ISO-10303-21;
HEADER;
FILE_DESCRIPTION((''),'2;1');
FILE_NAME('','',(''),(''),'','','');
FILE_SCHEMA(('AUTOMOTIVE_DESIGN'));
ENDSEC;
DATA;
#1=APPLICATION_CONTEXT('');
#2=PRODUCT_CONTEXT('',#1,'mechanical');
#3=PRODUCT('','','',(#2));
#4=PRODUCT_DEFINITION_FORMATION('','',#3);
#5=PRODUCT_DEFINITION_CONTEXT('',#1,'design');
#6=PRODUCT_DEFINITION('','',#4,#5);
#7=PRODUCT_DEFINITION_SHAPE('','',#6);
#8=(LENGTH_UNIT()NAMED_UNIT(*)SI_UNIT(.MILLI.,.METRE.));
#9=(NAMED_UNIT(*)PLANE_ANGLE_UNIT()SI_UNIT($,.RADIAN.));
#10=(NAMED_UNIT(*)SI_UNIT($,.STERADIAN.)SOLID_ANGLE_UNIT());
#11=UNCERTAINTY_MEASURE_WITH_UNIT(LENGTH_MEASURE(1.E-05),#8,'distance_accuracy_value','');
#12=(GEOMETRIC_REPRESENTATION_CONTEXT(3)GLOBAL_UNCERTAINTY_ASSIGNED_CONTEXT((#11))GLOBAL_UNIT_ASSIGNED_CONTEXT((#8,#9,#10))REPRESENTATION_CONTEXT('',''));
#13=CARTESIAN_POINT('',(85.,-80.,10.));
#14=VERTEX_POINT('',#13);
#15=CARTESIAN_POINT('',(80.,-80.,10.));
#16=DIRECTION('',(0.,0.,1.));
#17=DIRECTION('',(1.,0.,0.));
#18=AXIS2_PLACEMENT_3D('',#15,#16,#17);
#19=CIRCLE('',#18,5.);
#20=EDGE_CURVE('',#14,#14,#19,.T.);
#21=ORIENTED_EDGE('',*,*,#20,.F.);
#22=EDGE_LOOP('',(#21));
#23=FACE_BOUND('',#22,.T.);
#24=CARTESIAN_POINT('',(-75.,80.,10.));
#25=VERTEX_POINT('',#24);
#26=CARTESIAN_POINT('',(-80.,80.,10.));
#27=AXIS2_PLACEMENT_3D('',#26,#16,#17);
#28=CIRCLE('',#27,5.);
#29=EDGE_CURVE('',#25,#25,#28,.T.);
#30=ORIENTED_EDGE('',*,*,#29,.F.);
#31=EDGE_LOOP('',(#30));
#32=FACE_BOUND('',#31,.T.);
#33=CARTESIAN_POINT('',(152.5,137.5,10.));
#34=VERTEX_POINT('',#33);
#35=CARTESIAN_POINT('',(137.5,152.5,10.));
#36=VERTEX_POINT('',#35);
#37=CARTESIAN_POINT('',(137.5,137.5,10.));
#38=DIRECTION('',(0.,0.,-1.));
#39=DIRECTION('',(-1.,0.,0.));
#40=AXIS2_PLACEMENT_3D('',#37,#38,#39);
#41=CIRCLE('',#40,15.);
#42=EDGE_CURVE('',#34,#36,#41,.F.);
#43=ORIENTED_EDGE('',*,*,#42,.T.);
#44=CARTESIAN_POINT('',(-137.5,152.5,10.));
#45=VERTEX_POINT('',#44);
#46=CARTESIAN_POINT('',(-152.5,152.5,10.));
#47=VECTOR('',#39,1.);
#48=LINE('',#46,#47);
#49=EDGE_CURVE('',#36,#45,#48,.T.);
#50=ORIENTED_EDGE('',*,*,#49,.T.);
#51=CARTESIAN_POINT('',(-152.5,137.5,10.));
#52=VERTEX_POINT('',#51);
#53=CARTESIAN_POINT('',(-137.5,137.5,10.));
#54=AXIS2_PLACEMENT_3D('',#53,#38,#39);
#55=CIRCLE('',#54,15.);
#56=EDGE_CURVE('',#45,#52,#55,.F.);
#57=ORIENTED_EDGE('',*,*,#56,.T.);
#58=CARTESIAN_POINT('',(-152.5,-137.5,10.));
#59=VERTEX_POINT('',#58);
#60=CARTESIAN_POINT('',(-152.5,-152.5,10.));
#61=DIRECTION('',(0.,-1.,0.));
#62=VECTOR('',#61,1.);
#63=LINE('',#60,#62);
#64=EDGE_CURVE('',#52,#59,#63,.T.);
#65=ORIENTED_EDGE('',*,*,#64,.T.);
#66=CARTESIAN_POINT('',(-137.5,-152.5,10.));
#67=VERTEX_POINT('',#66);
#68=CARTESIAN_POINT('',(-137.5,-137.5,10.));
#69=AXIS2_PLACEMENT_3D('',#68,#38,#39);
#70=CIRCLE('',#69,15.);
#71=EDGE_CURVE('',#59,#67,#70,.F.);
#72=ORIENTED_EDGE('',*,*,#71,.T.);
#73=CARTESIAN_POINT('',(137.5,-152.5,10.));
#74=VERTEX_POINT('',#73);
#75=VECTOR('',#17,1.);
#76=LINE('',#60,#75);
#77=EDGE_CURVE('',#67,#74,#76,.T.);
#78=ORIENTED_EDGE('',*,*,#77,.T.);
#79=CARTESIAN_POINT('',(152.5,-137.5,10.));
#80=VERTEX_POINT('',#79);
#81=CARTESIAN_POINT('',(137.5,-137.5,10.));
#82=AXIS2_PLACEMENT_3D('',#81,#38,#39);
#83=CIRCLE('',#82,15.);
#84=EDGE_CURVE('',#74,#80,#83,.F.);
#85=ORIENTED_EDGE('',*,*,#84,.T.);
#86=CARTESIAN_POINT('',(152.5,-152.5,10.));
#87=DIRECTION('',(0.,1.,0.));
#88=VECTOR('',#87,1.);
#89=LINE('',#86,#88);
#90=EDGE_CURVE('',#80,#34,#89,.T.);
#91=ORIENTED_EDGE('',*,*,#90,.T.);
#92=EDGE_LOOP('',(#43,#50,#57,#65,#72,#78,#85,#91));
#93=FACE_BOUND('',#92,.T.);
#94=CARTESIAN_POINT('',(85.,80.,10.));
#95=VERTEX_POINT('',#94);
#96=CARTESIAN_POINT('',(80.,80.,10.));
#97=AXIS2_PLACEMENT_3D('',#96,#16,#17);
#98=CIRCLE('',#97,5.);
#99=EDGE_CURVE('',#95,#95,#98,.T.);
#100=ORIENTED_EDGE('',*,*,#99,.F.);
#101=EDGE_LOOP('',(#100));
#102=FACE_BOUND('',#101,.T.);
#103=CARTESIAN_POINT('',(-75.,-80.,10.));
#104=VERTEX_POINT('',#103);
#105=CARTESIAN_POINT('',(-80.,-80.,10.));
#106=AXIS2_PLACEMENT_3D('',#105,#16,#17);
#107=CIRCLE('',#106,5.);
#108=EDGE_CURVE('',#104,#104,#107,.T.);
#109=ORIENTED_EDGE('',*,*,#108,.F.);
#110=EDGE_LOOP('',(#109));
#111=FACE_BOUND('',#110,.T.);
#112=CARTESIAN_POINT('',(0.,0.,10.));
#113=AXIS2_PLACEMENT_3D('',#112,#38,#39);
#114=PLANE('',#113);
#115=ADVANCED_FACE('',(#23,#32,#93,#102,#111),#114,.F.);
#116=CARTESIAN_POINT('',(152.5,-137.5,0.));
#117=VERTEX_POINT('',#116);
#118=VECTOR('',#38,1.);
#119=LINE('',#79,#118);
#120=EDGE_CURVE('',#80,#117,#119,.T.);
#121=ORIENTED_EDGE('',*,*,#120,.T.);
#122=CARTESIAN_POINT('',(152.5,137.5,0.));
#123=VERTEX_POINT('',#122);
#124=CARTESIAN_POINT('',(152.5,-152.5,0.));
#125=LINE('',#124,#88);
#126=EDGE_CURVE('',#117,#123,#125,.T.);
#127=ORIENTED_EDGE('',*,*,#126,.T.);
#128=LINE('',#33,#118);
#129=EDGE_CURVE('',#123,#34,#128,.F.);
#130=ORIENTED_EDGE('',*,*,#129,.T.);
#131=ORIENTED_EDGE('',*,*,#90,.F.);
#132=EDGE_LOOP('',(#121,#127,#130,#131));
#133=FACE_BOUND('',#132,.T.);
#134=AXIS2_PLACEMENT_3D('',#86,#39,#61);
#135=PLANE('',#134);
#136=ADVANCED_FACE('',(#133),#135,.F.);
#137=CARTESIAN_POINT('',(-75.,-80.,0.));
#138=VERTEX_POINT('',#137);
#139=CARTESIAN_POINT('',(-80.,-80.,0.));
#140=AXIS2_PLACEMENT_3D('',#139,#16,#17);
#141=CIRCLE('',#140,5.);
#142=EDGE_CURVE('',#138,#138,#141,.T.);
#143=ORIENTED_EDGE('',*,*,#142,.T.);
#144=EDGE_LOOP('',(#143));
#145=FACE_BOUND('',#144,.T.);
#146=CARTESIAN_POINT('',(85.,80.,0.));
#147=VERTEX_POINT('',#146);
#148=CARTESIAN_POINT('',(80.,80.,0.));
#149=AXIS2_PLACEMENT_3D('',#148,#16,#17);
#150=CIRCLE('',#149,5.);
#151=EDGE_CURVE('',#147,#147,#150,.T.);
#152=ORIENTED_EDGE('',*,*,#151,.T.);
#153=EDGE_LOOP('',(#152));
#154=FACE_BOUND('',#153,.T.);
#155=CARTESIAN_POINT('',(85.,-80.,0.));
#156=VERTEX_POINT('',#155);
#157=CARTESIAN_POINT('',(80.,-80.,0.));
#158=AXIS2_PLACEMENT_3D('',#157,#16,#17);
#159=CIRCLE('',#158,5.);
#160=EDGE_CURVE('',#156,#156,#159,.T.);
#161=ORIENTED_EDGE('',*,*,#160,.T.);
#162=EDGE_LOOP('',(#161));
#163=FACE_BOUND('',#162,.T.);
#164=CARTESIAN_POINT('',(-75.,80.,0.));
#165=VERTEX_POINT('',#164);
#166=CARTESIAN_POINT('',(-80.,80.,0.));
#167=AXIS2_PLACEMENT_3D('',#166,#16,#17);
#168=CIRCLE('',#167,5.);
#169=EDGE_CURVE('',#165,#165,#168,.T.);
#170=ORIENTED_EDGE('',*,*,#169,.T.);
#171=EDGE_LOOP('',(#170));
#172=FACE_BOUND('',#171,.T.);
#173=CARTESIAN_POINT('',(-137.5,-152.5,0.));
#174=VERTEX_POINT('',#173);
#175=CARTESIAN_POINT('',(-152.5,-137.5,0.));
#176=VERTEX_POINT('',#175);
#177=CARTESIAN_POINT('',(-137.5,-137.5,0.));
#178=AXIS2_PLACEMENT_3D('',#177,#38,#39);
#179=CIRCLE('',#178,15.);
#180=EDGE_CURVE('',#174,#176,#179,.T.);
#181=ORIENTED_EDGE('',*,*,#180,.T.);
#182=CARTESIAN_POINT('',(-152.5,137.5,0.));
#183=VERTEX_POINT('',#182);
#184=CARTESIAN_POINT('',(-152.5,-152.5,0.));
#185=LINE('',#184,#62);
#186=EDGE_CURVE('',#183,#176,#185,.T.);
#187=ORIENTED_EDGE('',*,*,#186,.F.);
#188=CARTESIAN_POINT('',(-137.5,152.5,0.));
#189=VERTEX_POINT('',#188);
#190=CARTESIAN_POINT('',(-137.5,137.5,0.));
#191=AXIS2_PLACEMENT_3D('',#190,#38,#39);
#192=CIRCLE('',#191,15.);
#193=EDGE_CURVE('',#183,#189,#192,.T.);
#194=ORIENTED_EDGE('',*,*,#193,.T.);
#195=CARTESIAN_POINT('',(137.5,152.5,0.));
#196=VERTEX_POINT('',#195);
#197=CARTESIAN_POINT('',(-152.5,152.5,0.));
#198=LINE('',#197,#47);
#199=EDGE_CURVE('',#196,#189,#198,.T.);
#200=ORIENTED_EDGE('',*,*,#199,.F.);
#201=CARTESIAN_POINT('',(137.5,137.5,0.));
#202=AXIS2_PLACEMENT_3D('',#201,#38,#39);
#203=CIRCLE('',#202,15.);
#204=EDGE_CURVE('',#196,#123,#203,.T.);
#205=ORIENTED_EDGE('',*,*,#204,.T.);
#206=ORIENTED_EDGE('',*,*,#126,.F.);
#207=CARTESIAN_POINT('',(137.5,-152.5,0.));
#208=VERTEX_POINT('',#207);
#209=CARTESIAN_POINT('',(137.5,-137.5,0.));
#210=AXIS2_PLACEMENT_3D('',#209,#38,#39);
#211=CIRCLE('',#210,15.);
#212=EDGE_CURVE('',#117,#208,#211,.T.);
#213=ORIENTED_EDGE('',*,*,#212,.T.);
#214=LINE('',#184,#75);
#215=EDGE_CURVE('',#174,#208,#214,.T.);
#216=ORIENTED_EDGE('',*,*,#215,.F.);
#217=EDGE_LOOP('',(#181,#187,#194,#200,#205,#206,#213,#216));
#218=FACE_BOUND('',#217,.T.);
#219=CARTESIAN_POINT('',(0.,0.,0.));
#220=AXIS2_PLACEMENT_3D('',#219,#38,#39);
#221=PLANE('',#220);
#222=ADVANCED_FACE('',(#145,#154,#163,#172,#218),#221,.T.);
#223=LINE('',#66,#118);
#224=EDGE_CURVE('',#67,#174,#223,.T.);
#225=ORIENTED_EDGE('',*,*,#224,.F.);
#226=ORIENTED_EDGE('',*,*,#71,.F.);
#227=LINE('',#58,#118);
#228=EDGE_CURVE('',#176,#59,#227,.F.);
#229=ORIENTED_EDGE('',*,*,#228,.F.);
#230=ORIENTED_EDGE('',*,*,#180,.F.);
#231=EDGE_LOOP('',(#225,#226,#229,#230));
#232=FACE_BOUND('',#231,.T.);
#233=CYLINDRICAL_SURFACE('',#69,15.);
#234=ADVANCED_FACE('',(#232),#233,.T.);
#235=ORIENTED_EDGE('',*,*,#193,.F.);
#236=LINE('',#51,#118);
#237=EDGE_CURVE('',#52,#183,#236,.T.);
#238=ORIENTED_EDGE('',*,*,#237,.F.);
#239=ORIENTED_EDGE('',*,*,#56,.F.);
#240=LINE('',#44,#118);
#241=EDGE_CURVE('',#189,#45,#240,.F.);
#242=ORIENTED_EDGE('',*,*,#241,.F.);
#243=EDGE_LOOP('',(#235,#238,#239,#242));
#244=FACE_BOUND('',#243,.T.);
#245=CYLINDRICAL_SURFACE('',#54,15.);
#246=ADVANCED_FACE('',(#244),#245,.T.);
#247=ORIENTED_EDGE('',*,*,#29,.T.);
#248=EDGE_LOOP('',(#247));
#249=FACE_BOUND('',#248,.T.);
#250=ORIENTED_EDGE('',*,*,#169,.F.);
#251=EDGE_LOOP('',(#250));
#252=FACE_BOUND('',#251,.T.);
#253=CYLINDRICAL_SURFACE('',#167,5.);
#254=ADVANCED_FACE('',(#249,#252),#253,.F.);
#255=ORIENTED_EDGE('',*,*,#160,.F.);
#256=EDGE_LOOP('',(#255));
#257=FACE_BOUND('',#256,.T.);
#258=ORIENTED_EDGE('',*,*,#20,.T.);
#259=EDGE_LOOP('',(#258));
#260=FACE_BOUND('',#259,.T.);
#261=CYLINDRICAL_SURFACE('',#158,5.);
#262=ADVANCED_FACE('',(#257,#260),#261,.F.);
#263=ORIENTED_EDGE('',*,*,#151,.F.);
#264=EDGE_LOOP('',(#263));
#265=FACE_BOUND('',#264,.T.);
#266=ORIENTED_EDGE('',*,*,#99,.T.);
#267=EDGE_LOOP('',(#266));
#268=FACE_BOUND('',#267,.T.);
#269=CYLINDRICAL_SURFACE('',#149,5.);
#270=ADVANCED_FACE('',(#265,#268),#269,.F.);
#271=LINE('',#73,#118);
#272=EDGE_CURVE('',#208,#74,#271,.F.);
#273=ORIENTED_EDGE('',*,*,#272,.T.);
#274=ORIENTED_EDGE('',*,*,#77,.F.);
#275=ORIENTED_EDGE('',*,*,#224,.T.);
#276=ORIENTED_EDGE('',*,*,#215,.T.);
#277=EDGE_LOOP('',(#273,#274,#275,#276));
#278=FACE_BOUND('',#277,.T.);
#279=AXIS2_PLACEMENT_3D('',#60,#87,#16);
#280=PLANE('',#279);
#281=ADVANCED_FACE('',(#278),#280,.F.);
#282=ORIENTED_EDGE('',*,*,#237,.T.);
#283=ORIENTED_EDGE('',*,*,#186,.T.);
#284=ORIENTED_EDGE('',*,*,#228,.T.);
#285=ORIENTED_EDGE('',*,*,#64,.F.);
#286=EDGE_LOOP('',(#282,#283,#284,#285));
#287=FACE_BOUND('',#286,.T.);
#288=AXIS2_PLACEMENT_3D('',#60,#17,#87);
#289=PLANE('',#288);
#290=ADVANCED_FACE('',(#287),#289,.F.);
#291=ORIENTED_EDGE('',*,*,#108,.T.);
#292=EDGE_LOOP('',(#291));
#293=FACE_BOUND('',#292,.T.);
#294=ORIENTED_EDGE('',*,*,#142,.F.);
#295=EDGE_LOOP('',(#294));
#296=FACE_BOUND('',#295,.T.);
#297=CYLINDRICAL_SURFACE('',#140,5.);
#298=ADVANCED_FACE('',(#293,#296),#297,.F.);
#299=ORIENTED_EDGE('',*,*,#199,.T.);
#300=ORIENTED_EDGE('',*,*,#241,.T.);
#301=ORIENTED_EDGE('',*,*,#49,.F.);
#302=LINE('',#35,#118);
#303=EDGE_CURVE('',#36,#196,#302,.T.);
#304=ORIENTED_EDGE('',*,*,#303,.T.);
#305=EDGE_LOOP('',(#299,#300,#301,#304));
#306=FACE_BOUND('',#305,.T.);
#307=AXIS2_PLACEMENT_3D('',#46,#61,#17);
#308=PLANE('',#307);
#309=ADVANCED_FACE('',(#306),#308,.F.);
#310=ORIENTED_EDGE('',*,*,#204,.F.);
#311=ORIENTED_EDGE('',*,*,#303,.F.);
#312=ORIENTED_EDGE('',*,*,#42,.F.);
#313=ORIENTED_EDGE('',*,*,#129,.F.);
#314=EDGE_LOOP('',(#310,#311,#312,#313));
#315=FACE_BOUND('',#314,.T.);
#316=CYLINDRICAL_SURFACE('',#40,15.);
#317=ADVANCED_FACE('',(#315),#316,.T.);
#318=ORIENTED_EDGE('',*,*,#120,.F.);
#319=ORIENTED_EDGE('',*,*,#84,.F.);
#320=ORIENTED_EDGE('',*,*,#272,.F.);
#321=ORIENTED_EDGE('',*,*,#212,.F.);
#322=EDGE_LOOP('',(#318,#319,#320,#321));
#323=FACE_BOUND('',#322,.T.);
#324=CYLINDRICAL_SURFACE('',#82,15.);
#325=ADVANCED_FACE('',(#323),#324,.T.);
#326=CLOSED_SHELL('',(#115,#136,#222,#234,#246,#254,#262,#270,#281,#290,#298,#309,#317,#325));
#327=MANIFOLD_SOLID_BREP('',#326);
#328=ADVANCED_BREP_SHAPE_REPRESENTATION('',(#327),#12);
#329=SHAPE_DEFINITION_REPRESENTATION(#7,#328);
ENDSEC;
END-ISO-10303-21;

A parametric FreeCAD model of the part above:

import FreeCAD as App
import Part
import Sketcher

V = App.Vector
Q = App.Units.Quantity


def edges_at(feature, points):
    """Names of the edges that pass closest to the given points."""
    edges = feature.Shape.Edges
    near = lambda p: min(range(len(edges)), key=lambda i: edges[i].distToShape(Part.Vertex(*p))[0])
    return sorted({f"Edge{near(p) + 1}" for p in points})

doc = App.newDocument("Part")
body = doc.addObject("PartDesign::Body", "Body")

# Sketch on XY plane
sketch1 = body.newObject("Sketcher::SketchObject", "Sketch")
sketch1.AttachmentSupport = (doc.getObject("XY_Plane"), [""])
sketch1.MapMode = "FlatFace"
sketch1.addGeometry(Part.LineSegment(V(-152, 152, 0), V(-152, -152, 0)), False)
sketch1.addGeometry(Part.LineSegment(V(-152, -152, 0), V(152, -152, 0)), False)
sketch1.addGeometry(Part.LineSegment(V(152, -152, 0), V(152, 152, 0)), False)
sketch1.addGeometry(Part.LineSegment(V(152, 152, 0), V(-152, 152, 0)), False)
sketch1.addConstraint(Sketcher.Constraint("Coincident", 0, 2, 1, 1))
sketch1.addConstraint(Sketcher.Constraint("Coincident", 1, 2, 2, 1))
sketch1.addConstraint(Sketcher.Constraint("Coincident", 2, 2, 3, 1))
sketch1.addConstraint(Sketcher.Constraint("Coincident", 3, 2, 0, 1))
sketch1.addConstraint(Sketcher.Constraint("Vertical", 0))
sketch1.addConstraint(Sketcher.Constraint("Horizontal", 1))
sketch1.addConstraint(Sketcher.Constraint("Vertical", 2))
sketch1.addConstraint(Sketcher.Constraint("Horizontal", 3))
sketch1.addConstraint(Sketcher.Constraint("Symmetric", 0, 2, 2, 2, -1, 1))
sketch1.addConstraint(Sketcher.Constraint("Equal", 3, 0))
sketch1.addConstraint(Sketcher.Constraint("DistanceX", 1, 1, 1, 2, Q("305 mm")))
pad1 = body.newObject("PartDesign::Pad", "Pad")
pad1.Profile = sketch1
pad1.Length = 10
doc.recompute()

fillet = body.newObject("PartDesign::Fillet", "Fillet")
fillet.Base = (pad1, edges_at(pad1, [
    (-152.5, 152.5, 5),
    (152.5, 152.5, 5),
    (152.5, -152.5, 5),
    (-152.5, -152.5, 5),
]))
fillet.Radius = 15

# Sketch on XY plane
sketch2 = body.newObject("Sketcher::SketchObject", "Sketch001")
sketch2.AttachmentSupport = (doc.getObject("XY_Plane"), [""])
sketch2.MapMode = "FlatFace"
sketch2.AttachmentOffset = App.Placement(V(0, 0, 10), App.Rotation())
sketch2.addGeometry(Part.Circle(V(80, 80, 0), V(0, 0, 1), 5), False)
sketch2.addGeometry(Part.Circle(V(80, -80, 0), V(0, 0, 1), 5), False)
sketch2.addGeometry(Part.Circle(V(-80, -80, 0), V(0, 0, 1), 5), False)
sketch2.addGeometry(Part.Circle(V(-80, 80, 0), V(0, 0, 1), 5), False)
sketch2.addConstraint(Sketcher.Constraint("Equal", 0, 1))
sketch2.addConstraint(Sketcher.Constraint("Equal", 1, 2))
sketch2.addConstraint(Sketcher.Constraint("Equal", 2, 3))
sketch2.addConstraint(Sketcher.Constraint("Symmetric", 0, 3, 2, 3, -1, 1))
sketch2.addConstraint(Sketcher.Constraint("Symmetric", 1, 3, 3, 3, -1, 1))
sketch2.addConstraint(Sketcher.Constraint("Symmetric", 1, 3, 2, 3, -2))
sketch2.addConstraint(Sketcher.Constraint("Diameter", 0, Q("10 mm")))
sketch2.addConstraint(Sketcher.Constraint("DistanceX", -1, 1, 0, 3, Q("80 mm")))
sketch2.addConstraint(Sketcher.Constraint("DistanceY", -1, 1, 0, 3, Q("80 mm")))
pocket1 = body.newObject("PartDesign::Pocket", "Pocket")
pocket1.Profile = sketch2
pocket1.Length = 10

doc.recompute()
